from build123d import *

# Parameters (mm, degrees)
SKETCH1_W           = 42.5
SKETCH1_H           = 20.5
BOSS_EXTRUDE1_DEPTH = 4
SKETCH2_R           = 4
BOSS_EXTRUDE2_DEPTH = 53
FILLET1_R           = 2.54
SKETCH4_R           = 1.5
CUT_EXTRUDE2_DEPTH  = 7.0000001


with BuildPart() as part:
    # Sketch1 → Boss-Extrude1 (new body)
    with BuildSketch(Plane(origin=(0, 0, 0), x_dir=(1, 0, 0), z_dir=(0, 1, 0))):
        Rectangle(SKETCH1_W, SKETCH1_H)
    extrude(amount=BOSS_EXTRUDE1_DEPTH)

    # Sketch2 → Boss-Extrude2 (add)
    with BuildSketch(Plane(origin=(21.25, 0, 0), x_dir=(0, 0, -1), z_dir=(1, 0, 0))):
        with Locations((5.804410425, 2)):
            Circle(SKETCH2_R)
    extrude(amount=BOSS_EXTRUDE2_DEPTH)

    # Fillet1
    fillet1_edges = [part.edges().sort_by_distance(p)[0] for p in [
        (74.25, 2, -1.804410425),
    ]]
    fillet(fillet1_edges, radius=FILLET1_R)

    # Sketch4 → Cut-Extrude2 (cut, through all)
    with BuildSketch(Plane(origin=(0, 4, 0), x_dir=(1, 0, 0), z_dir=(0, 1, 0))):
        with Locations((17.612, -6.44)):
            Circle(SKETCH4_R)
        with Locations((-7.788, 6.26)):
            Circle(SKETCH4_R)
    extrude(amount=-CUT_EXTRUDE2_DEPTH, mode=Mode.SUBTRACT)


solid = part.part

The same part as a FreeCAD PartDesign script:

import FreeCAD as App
import Part
import Sketcher


def edges_at(feature, points):
    """Names of the edges that pass closest to the given points."""
    edges = feature.Shape.Edges
    near = lambda p: min(range(len(edges)), key=lambda i: edges[i].distToShape(Part.Vertex(*p))[0])
    return sorted({f"Edge{near(p) + 1}" for p in points})

doc = App.newDocument("Part")
body = doc.addObject("PartDesign::Body", "Body")

sketch1 = doc.addObject("Sketcher::SketchObject", "Sketch")
body.addObject(sketch1)
sketch1.AttachmentSupport = (doc.XZ_Plane, [""])
sketch1.MapMode = "FlatFace"
sketch1.addGeometry(Part.LineSegment(App.Vector(-21, -10, 0), App.Vector(-21, 10, 0)), False)
sketch1.addGeometry(Part.LineSegment(App.Vector(-21, 10, 0), App.Vector(21, 10, 0)), False)
sketch1.addGeometry(Part.LineSegment(App.Vector(21, 10, 0), App.Vector(21, -10, 0)), False)
sketch1.addGeometry(Part.LineSegment(App.Vector(21, -10, 0), App.Vector(-21, -10, 0)), False)
sketch1.addConstraint(Sketcher.Constraint("Coincident", 0, 2, 1, 1))
sketch1.addConstraint(Sketcher.Constraint("Coincident", 1, 2, 2, 1))
sketch1.addConstraint(Sketcher.Constraint("Coincident", 2, 2, 3, 1))
sketch1.addConstraint(Sketcher.Constraint("Coincident", 3, 2, 0, 1))
sketch1.addConstraint(Sketcher.Constraint("Vertical", 0))
sketch1.addConstraint(Sketcher.Constraint("Horizontal", 1))
sketch1.addConstraint(Sketcher.Constraint("Vertical", 2))
sketch1.addConstraint(Sketcher.Constraint("Horizontal", 3))
sketch1.addConstraint(Sketcher.Constraint("Symmetric", 0, 2, 2, 2, -1, 1))
sketch1.addConstraint(Sketcher.Constraint("DistanceX", 1, 1, 1, 2, 42.5))
sketch1.addConstraint(Sketcher.Constraint("DistanceY", 0, 1, 0, 2, 20.5))
pad1 = doc.addObject("PartDesign::Pad", "Pad")
body.addObject(pad1)
pad1.Profile = sketch1
pad1.Length = 4
pad1.Reversed = True

sketch2 = doc.addObject("Sketcher::SketchObject", "Sketch001")
body.addObject(sketch2)
sketch2.AttachmentSupport = (doc.YZ_Plane, [""])
sketch2.MapMode = "FlatFace"
sketch2.AttachmentOffset = App.Placement(App.Vector(0, 0, 21.25), App.Rotation())
sketch2.addGeometry(Part.Circle(App.Vector(2, -5.8, 0), App.Vector(0, 0, 1), 4), False)
sketch2.addConstraint(Sketcher.Constraint("Diameter", 0, 8.0))
sketch2.addConstraint(Sketcher.Constraint("DistanceX", -1, 1, 0, 3, 2.0))
sketch2.addConstraint(Sketcher.Constraint("DistanceY", 0, 3, -1, 1, 5.80441))
pad2 = doc.addObject("PartDesign::Pad", "Pad001")
body.addObject(pad2)
pad2.Profile = sketch2
pad2.Length = 53
doc.recompute()

fillet = doc.addObject("PartDesign::Fillet", "Fillet")
body.addObject(fillet)
fillet.Base = (pad2, edges_at(pad2, [(74.25, 2, -1.804)]))
fillet.Radius = 2.54

sketch3 = doc.addObject("Sketcher::SketchObject", "Sketch002")
body.addObject(sketch3)
sketch3.AttachmentSupport = (doc.XZ_Plane, [""])
sketch3.MapMode = "FlatFace"
sketch3.AttachmentOffset = App.Placement(App.Vector(0, 0, -4), App.Rotation())
sketch3.addGeometry(Part.Circle(App.Vector(17.6, 6.4, 0), App.Vector(0, 0, 1), 1.5), False)
sketch3.addGeometry(Part.Circle(App.Vector(-7.8, -6.3, 0), App.Vector(0, 0, 1), 1.5), False)
sketch3.addConstraint(Sketcher.Constraint("Equal", 0, 1))
sketch3.addConstraint(Sketcher.Constraint("Diameter", 0, 3.0))
sketch3.addConstraint(Sketcher.Constraint("DistanceX", 1, 3, 0, 3, 25.4))
sketch3.addConstraint(Sketcher.Constraint("DistanceY", 1, 3, 0, 3, 12.7))
sketch3.addConstraint(Sketcher.Constraint("DistanceY", -1, 1, 0, 3, 6.44))
sketch3.addConstraint(Sketcher.Constraint("DistanceX", -1, 1, 0, 3, 17.612))
pocket1 = doc.addObject("PartDesign::Pocket", "Pocket")
body.addObject(pocket1)
pocket1.Profile = sketch3
pocket1.Type = "ThroughAll"
pocket1.Reversed = True

doc.recompute()
